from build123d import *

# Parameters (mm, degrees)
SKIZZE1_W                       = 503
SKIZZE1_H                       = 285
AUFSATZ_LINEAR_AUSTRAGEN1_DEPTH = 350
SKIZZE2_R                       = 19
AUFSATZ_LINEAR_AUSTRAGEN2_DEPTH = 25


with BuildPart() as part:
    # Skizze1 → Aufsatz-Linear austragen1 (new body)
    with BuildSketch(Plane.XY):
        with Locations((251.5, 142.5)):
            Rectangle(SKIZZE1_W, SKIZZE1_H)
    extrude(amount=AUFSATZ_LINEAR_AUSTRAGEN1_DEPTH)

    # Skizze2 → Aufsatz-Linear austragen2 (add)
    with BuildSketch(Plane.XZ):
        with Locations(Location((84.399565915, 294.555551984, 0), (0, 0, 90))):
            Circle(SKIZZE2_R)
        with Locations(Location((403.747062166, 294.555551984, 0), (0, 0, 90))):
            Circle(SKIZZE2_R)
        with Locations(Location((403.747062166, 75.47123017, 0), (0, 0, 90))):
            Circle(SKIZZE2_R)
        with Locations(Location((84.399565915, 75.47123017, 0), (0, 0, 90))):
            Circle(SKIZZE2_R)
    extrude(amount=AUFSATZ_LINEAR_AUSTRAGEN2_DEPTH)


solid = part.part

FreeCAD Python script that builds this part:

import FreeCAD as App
import Part
import Sketcher


def add_polygon(sketch, points):
    """Adds a closed chain of lines whose ends are joined by coincident constraints."""
    first, n = sketch.GeometryCount, len(points)
    for a, b in zip(points, points[1:] + points[:1]):
        sketch.addGeometry(Part.LineSegment(App.Vector(*a, 0), App.Vector(*b, 0)), False)
    for i in range(n):
        sketch.addConstraint(Sketcher.Constraint("Coincident", first + i, 2, first + (i + 1) % n, 1))

doc = App.newDocument("Part")
body = doc.addObject("PartDesign::Body", "Body")

# Sketch on XY plane
sketch1 = doc.addObject("Sketcher::SketchObject", "Sketch")
body.addObject(sketch1)
sketch1.AttachmentSupport = (doc.XY_Plane, [""])
sketch1.MapMode = "FlatFace"
add_polygon(sketch1, [(0, 285), (0, 0), (503, 0), (503, 285)])  # lines 0-3
sketch1.addConstraint(Sketcher.Constraint("Vertical", 0))
sketch1.addConstraint(Sketcher.Constraint("Horizontal", 1))
sketch1.addConstraint(Sketcher.Constraint("Vertical", 2))
sketch1.addConstraint(Sketcher.Constraint("Horizontal", 3))
sketch1.addConstraint(Sketcher.Constraint("Coincident", 0, 2, -1, 1))
sketch1.addConstraint(Sketcher.Constraint("DistanceX", 1, 1, 1, 2, 503.0))
sketch1.addConstraint(Sketcher.Constraint("DistanceY", 0, 2, 0, 1, 285.0))
pad1 = doc.addObject("PartDesign::Pad", "Pad")
body.addObject(pad1)
pad1.Profile = sketch1
pad1.Length = 350

# Sketch on XZ plane
sketch2 = doc.addObject("Sketcher::SketchObject", "Sketch001")
body.addObject(sketch2)
sketch2.AttachmentSupport = (doc.XZ_Plane, [""])
sketch2.MapMode = "FlatFace"
sketch2.addGeometry(Part.Circle(App.Vector(84, 295, 0), App.Vector(0, 0, 1), 19), False)
sketch2.addGeometry(Part.Circle(App.Vector(404, 295, 0), App.Vector(0, 0, 1), 19), False)
sketch2.addGeometry(Part.Circle(App.Vector(404, 75, 0), App.Vector(0, 0, 1), 19), False)
sketch2.addGeometry(Part.Circle(App.Vector(84, 75, 0), App.Vector(0, 0, 1), 19), False)
sketch2.addConstraint(Sketcher.Constraint("Equal", 0, 1))
sketch2.addConstraint(Sketcher.Constraint("Equal", 1, 2))
sketch2.addConstraint(Sketcher.Constraint("Equal", 2, 3))
sketch2.addConstraint(Sketcher.Constraint("Horizontal", 0, 3, 1, 3))
sketch2.addConstraint(Sketcher.Constraint("Horizontal", 2, 3, 3, 3))
sketch2.addConstraint(Sketcher.Constraint("Vertical", 1, 3, 2, 3))
sketch2.addConstraint(Sketcher.Constraint("Vertical", 0, 3, 3, 3))
sketch2.addConstraint(Sketcher.Constraint("Diameter", 0, 38.0))
sketch2.addConstraint(Sketcher.Constraint("DistanceY", -1, 1, 0, 3, 294.555552))
sketch2.addConstraint(Sketcher.Constraint("DistanceY", -1, 1, 2, 3, 75.47123))
sketch2.addConstraint(Sketcher.Constraint("DistanceX", -1, 1, 0, 3, 84.399566))
sketch2.addConstraint(Sketcher.Constraint("DistanceX", -1, 1, 1, 3, 403.747062))
pad2 = doc.addObject("PartDesign::Pad", "Pad001")
body.addObject(pad2)
pad2.Profile = sketch2
pad2.Length = 25

doc.recompute()
